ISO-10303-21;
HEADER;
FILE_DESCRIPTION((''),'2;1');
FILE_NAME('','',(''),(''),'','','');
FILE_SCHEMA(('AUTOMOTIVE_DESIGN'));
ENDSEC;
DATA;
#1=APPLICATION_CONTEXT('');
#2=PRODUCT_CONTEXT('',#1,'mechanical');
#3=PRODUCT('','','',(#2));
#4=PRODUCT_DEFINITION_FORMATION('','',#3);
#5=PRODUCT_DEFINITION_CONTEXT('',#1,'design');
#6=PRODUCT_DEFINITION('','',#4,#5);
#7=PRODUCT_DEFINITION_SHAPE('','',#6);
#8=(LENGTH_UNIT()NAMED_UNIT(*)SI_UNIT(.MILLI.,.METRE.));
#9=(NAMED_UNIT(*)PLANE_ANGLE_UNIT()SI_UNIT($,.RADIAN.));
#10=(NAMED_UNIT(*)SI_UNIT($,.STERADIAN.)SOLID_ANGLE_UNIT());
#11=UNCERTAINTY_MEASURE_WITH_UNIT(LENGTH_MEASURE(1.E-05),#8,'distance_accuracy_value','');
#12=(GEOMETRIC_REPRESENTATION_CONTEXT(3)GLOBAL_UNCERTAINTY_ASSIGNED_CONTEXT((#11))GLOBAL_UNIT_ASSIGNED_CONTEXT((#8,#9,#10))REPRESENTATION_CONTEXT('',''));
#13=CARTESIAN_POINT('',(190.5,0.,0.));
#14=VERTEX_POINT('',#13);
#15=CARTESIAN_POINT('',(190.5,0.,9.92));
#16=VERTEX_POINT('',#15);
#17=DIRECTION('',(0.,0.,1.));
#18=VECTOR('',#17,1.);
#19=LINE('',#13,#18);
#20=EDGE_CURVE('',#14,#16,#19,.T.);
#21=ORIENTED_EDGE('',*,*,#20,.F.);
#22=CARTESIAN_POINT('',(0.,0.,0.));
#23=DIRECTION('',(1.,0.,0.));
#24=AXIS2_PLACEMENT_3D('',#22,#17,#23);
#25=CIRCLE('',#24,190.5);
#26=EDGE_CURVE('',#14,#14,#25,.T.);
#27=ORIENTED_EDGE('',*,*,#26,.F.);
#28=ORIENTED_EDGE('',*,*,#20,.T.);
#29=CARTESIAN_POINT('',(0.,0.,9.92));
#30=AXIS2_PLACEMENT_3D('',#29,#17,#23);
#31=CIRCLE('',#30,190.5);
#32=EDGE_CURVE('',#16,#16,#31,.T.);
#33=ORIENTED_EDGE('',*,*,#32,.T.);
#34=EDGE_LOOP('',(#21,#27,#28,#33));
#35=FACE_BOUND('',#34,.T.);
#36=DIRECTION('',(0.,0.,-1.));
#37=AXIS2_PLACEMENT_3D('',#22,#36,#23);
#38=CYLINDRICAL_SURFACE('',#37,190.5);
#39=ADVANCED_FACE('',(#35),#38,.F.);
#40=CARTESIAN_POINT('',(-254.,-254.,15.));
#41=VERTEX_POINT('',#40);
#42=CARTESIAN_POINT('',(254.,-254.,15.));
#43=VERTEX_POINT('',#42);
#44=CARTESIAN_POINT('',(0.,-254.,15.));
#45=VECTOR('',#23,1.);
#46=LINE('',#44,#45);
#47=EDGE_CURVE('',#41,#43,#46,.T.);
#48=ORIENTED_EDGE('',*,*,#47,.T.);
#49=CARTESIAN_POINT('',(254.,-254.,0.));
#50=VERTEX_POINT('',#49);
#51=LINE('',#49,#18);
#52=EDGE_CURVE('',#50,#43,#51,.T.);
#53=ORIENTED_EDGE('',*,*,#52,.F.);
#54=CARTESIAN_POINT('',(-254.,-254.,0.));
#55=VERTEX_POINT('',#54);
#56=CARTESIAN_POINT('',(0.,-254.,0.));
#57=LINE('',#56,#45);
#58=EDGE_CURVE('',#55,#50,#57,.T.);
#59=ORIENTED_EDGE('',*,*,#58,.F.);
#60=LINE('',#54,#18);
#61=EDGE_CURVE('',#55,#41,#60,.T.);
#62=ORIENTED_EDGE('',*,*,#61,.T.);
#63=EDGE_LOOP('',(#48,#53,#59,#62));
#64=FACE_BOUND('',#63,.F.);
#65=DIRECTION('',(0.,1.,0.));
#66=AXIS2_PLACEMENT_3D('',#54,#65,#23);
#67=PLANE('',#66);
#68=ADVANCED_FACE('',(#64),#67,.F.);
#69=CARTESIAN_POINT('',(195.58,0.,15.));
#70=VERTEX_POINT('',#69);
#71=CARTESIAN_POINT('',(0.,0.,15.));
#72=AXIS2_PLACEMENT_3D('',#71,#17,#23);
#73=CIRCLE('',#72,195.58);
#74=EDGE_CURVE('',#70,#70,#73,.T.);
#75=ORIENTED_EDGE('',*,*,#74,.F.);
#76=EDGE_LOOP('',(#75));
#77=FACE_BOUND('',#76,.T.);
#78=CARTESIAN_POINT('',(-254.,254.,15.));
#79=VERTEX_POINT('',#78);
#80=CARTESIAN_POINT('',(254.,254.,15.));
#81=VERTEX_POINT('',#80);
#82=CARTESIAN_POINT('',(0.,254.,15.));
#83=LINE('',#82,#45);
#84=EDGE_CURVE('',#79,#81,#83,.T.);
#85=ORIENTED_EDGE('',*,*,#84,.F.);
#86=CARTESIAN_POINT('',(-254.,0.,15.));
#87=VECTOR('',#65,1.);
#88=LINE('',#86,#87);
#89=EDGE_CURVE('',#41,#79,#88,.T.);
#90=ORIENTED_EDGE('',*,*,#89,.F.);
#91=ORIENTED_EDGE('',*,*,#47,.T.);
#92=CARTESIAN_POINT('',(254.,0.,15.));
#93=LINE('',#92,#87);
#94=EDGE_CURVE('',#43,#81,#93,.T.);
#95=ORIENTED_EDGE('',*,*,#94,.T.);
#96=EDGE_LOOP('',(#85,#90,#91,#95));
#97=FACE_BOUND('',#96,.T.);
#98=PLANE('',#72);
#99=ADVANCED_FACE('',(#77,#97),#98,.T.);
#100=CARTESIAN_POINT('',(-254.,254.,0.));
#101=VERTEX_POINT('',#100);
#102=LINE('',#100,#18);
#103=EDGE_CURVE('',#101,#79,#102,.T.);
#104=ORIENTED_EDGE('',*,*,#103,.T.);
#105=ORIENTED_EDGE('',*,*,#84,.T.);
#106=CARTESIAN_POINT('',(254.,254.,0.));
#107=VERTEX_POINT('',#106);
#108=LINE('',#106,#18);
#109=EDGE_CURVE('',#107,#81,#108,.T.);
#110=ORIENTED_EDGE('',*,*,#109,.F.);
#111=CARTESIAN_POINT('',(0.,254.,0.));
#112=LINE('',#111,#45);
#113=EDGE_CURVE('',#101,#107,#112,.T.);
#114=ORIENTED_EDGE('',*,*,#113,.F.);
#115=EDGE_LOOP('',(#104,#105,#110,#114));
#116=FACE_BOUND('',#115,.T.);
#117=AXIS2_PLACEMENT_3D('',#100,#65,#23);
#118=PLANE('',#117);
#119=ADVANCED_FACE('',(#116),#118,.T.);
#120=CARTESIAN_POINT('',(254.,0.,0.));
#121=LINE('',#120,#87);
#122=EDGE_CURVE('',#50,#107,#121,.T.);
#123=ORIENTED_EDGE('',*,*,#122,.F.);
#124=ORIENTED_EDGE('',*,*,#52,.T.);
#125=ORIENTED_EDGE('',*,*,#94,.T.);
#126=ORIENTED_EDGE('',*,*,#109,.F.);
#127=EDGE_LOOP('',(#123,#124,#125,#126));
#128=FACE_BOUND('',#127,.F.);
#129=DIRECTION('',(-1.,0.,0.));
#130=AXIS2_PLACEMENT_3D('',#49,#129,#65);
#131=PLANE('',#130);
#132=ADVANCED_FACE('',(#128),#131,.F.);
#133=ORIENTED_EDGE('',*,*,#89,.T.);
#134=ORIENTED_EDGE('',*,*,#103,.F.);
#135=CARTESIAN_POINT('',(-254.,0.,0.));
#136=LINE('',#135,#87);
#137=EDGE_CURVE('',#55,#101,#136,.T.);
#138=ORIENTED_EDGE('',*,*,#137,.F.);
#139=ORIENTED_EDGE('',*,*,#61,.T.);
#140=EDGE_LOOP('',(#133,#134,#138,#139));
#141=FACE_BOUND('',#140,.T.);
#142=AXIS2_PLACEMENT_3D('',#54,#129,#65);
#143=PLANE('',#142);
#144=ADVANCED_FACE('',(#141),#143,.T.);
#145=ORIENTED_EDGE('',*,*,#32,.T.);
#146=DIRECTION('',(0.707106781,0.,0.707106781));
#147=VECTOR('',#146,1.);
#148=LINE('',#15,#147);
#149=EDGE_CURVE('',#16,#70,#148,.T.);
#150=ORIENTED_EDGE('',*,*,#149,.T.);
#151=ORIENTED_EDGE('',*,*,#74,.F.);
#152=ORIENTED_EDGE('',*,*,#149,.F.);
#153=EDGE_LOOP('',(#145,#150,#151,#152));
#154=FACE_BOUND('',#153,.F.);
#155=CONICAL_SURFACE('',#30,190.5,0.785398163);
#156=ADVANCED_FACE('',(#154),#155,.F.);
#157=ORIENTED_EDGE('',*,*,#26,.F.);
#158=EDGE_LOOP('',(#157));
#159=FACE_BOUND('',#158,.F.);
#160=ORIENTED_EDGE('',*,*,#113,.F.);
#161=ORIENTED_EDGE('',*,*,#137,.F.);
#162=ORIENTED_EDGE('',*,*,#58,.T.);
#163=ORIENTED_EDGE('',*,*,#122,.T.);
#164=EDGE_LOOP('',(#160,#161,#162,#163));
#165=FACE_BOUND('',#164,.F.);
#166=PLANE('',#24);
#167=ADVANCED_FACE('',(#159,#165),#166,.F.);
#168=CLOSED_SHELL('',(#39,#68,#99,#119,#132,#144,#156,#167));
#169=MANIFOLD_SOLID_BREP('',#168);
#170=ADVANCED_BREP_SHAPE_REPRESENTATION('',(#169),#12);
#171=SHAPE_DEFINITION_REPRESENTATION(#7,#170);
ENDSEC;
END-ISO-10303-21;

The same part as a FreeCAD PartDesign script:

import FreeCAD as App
import Part
import Sketcher
from FreeCAD import Vector
Q = App.Units.Quantity


def edges_at(feature, points):
    """Names of the edges that pass closest to the given points."""
    edges = feature.Shape.Edges
    near = lambda p: min(range(len(edges)), key=lambda i: edges[i].distToShape(Part.Vertex(*p))[0])
    return sorted({f"Edge{near(p) + 1}" for p in points})

doc = App.newDocument("Part")
body = doc.addObject("PartDesign::Body", "Body")

# Sketch on XY plane
sketch1 = body.newObject("Sketcher::SketchObject", "Sketch")
sketch1.AttachmentSupport = (doc.getObject("XY_Plane"), [""])
sketch1.MapMode = "FlatFace"
sketch1.addGeometry([
    Part.LineSegment(Vector(-254, 254, 0), Vector(-254, -254, 0)),  # 0
    Part.LineSegment(Vector(-254, -254, 0), Vector(254, -254, 0)),  # 1
    Part.LineSegment(Vector(254, -254, 0), Vector(254, 254, 0)),  # 2
    Part.LineSegment(Vector(254, 254, 0), Vector(-254, 254, 0)),  # 3
    Part.Circle(Vector(0, 0, 0), Vector(0, 0, 1), 190.5),  # 4
], False)
sketch1.addConstraint([
    Sketcher.Constraint("Coincident", 0, 2, 1, 1),
    Sketcher.Constraint("Coincident", 1, 2, 2, 1),
    Sketcher.Constraint("Coincident", 2, 2, 3, 1),
    Sketcher.Constraint("Coincident", 3, 2, 0, 1),
    Sketcher.Constraint("Vertical", 0),
    Sketcher.Constraint("Horizontal", 1),
    Sketcher.Constraint("Vertical", 2),
    Sketcher.Constraint("Horizontal", 3),
    Sketcher.Constraint("Coincident", 4, 3, -1, 1),
    Sketcher.Constraint("Symmetric", 0, 2, 2, 2, -1, 1),
    Sketcher.Constraint("Equal", 3, 0),
    Sketcher.Constraint("Diameter", 4, Q("15 in")),
    Sketcher.Constraint("DistanceX", 1, 1, 1, 2, Q("20 in")),
])
pad1 = body.newObject("PartDesign::Pad", "Pad")
pad1.Profile = sketch1
pad1.Length = 15
doc.recompute()

chamfer = body.newObject("PartDesign::Chamfer", "Chamfer")
chamfer.Base = (pad1, edges_at(pad1, [(-190.5, 0, 15)]))
chamfer.Size = Q("0.2 in")

doc.recompute()
